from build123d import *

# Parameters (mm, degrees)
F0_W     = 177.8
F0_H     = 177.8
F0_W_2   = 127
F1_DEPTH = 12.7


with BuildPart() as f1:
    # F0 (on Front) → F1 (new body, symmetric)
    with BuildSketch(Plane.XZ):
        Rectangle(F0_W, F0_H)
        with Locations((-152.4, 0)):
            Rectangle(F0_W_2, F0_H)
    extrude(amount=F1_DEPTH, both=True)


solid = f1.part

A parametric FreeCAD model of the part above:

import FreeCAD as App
import Part
import Sketcher
Q = App.Units.Quantity


def add_polygon(sketch, points):
    """Adds a closed chain of lines whose ends are joined by coincident constraints."""
    first, n = sketch.GeometryCount, len(points)
    for a, b in zip(points, points[1:] + points[:1]):
        sketch.addGeometry(Part.LineSegment(App.Vector(*a, 0), App.Vector(*b, 0)), False)
    for i in range(n):
        sketch.addConstraint(Sketcher.Constraint("Coincident", first + i, 2, first + (i + 1) % n, 1))

doc = App.newDocument("Part")
body = doc.addObject("PartDesign::Body", "Body")

sketch1 = body.newObject("Sketcher::SketchObject", "Sketch")
sketch1.AttachmentSupport = (doc.getObject("XZ_Plane"), [""])
sketch1.MapMode = "FlatFace"
add_polygon(sketch1, [(88.9, -88.9), (88.9, 88.9), (-215.9, 88.9), (-215.9, -88.9)])
sketch1.addConstraint(Sketcher.Constraint("Vertical", 0))
sketch1.addConstraint(Sketcher.Constraint("Horizontal", 1))
sketch1.addConstraint(Sketcher.Constraint("Vertical", 2))
sketch1.addConstraint(Sketcher.Constraint("Horizontal", 3))
sketch1.addConstraint(Sketcher.Constraint("DistanceX", 1, 2, 1, 1, Q("12 in")))
sketch1.addConstraint(Sketcher.Constraint("DistanceY", 0, 1, 0, 2, Q("7 in")))
sketch1.addConstraint(Sketcher.Constraint("DistanceX", -1, 1, 0, 2, Q("3.5 in")))
sketch1.addConstraint(Sketcher.Constraint("DistanceY", -1, 1, 0, 2, Q("3.5 in")))
pad1 = body.newObject("PartDesign::Pad", "Pad")
pad1.Profile = sketch1
pad1.Length = Q("1 in")
pad1.Midplane = True

doc.recompute()
